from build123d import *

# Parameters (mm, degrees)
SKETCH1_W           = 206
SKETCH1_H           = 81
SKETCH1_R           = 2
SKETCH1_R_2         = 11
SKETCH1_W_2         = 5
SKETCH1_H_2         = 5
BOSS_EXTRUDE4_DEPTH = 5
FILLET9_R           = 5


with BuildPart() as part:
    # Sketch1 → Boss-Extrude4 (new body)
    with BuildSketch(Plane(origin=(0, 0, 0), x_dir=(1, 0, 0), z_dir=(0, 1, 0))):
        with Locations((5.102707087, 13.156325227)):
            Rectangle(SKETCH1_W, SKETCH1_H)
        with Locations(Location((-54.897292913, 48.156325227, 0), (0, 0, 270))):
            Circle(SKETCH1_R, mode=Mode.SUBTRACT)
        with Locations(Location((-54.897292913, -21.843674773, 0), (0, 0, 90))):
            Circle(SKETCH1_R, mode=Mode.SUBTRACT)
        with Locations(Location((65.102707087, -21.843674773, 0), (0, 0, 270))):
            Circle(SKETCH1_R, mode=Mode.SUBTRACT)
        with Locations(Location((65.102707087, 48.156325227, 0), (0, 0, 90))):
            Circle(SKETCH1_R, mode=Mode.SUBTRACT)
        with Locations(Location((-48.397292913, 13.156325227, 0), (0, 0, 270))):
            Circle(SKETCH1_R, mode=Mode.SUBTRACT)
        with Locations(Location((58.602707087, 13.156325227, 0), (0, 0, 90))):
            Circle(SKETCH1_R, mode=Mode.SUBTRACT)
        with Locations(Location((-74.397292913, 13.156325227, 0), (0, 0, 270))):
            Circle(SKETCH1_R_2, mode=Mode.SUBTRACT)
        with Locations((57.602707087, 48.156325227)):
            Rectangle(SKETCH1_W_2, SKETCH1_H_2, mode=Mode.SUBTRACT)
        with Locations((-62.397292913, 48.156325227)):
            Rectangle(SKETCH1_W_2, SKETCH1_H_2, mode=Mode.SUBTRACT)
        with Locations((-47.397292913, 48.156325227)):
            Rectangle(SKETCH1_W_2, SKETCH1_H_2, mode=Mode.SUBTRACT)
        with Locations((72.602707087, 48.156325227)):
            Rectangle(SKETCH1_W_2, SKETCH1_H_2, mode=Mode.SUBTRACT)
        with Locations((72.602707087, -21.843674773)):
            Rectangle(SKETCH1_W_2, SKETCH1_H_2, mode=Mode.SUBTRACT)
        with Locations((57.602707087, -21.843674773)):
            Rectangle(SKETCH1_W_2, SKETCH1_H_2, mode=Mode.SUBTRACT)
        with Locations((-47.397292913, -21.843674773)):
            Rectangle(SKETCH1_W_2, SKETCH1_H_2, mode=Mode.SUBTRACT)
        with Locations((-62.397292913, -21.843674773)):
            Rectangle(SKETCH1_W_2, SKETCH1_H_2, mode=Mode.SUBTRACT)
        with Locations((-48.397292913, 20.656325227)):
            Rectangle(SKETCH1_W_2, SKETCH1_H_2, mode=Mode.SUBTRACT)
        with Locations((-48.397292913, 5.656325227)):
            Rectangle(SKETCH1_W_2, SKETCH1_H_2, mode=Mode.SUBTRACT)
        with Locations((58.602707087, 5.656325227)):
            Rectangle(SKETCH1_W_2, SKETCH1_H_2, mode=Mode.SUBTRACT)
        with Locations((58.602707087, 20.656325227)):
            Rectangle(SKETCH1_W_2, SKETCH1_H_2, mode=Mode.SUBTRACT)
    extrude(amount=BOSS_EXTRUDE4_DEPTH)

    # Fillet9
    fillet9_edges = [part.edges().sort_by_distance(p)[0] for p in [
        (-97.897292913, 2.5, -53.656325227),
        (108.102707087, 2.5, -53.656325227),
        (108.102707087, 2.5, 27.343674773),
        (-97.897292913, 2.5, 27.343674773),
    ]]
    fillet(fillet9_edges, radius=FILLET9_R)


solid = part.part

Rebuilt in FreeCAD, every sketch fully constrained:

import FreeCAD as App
import Part
import Sketcher
from FreeCAD import Vector


def edges_at(feature, points):
    """Names of the edges that pass closest to the given points."""
    edges = feature.Shape.Edges
    near = lambda p: min(range(len(edges)), key=lambda i: edges[i].distToShape(Part.Vertex(*p))[0])
    return sorted({f"Edge{near(p) + 1}" for p in points})

doc = App.newDocument("Part")
params = doc.addObject("Spreadsheet::Sheet", "Params")
for row, (alias, value) in enumerate([
    ("sketch1_diameter", "4 mm"),
    ("sketch1_diameter2", "22 mm"),
    ("sketch1_width", "206 mm"),
    ("sketch1_width2", "5 mm"),
    ("sketch1_height", "81 mm"),
    ("pad1_length", "5 mm"),
    ("fillet_radius", "5 mm"),
], start=1):
    params.set(f"A{row}", alias)
    params.set(f"B{row}", "=" + value)
    params.setAlias(f"B{row}", alias)

body = doc.addObject("PartDesign::Body", "Body")

sketch1 = body.newObject("Sketcher::SketchObject", "Sketch")
sketch1.AttachmentSupport = (doc.getObject("XZ_Plane"), [""])
sketch1.MapMode = "FlatFace"
sketch1.addGeometry(Part.LineSegment(Vector(-97.9, -53.7, 0), Vector(-97.9, 27.3, 0)), False)
sketch1.addGeometry(Part.LineSegment(Vector(-97.9, 27.3, 0), Vector(108.1, 27.3, 0)), False)
sketch1.addGeometry(Part.LineSegment(Vector(108.1, 27.3, 0), Vector(108.1, -53.7, 0)), False)
sketch1.addGeometry(Part.LineSegment(Vector(108.1, -53.7, 0), Vector(-97.9, -53.7, 0)), False)
sketch1.addGeometry(Part.LineSegment(Vector(-59.9, 24.3, 0), Vector(-64.9, 24.3, 0)), False)
sketch1.addGeometry(Part.LineSegment(Vector(-64.9, 24.3, 0), Vector(-64.9, 19.3, 0)), False)
sketch1.addGeometry(Part.LineSegment(Vector(-64.9, 19.3, 0), Vector(-59.9, 19.3, 0)), False)
sketch1.addGeometry(Part.LineSegment(Vector(-59.9, 19.3, 0), Vector(-59.9, 24.3, 0)), False)
sketch1.addGeometry(Part.Circle(Vector(-54.9, 21.8, 0), Vector(0, 0, 1), 2), False)
sketch1.addGeometry(Part.LineSegment(Vector(-44.9, 24.3, 0), Vector(-49.9, 24.3, 0)), False)
sketch1.addGeometry(Part.LineSegment(Vector(-49.9, 24.3, 0), Vector(-49.9, 19.3, 0)), False)
sketch1.addGeometry(Part.LineSegment(Vector(-49.9, 19.3, 0), Vector(-44.9, 19.3, 0)), False)
sketch1.addGeometry(Part.LineSegment(Vector(-44.9, 19.3, 0), Vector(-44.9, 24.3, 0)), False)
sketch1.addGeometry(Part.LineSegment(Vector(-45.9, -3.2, 0), Vector(-50.9, -3.2, 0)), False)
sketch1.addGeometry(Part.LineSegment(Vector(-50.9, -3.2, 0), Vector(-50.9, -8.2, 0)), False)
sketch1.addGeometry(Part.LineSegment(Vector(-50.9, -8.2, 0), Vector(-45.9, -8.2, 0)), False)
sketch1.addGeometry(Part.LineSegment(Vector(-45.9, -8.2, 0), Vector(-45.9, -3.2, 0)), False)
sketch1.addGeometry(Part.LineSegment(Vector(60.1, 24.3, 0), Vector(55.1, 24.3, 0)), False)
sketch1.addGeometry(Part.LineSegment(Vector(55.1, 24.3, 0), Vector(55.1, 19.3, 0)), False)
sketch1.addGeometry(Part.LineSegment(Vector(55.1, 19.3, 0), Vector(60.1, 19.3, 0)), False)
sketch1.addGeometry(Part.LineSegment(Vector(60.1, 19.3, 0), Vector(60.1, 24.3, 0)), False)
sketch1.addGeometry(Part.Circle(Vector(65.1, 21.8, 0), Vector(0, 0, 1), 2), False)
sketch1.addGeometry(Part.LineSegment(Vector(75.1, 24.3, 0), Vector(70.1, 24.3, 0)), False)
sketch1.addGeometry(Part.LineSegment(Vector(70.1, 24.3, 0), Vector(70.1, 19.3, 0)), False)
sketch1.addGeometry(Part.LineSegment(Vector(70.1, 19.3, 0), Vector(75.1, 19.3, 0)), False)
sketch1.addGeometry(Part.LineSegment(Vector(75.1, 19.3, 0), Vector(75.1, 24.3, 0)), False)
sketch1.addGeometry(Part.LineSegment(Vector(61.1, -3.2, 0), Vector(56.1, -3.2, 0)), False)
sketch1.addGeometry(Part.LineSegment(Vector(56.1, -3.2, 0), Vector(56.1, -8.2, 0)), False)
sketch1.addGeometry(Part.LineSegment(Vector(56.1, -8.2, 0), Vector(61.1, -8.2, 0)), False)
sketch1.addGeometry(Part.LineSegment(Vector(61.1, -8.2, 0), Vector(61.1, -3.2, 0)), False)
sketch1.addGeometry(Part.Circle(Vector(-74.4, -13.2, 0), Vector(0, 0, 1), 11), False)
sketch1.addGeometry(Part.Circle(Vector(-48.4, -13.2, 0), Vector(0, 0, 1), 2), False)
sketch1.addGeometry(Part.LineSegment(Vector(-45.9, -18.2, 0), Vector(-50.9, -18.2, 0)), False)
sketch1.addGeometry(Part.LineSegment(Vector(-50.9, -18.2, 0), Vector(-50.9, -23.2, 0)), False)
sketch1.addGeometry(Part.LineSegment(Vector(-50.9, -23.2, 0), Vector(-45.9, -23.2, 0)), False)
sketch1.addGeometry(Part.LineSegment(Vector(-45.9, -23.2, 0), Vector(-45.9, -18.2, 0)), False)
sketch1.addGeometry(Part.LineSegment(Vector(-59.9, -45.7, 0), Vector(-64.9, -45.7, 0)), False)
sketch1.addGeometry(Part.LineSegment(Vector(-64.9, -45.7, 0), Vector(-64.9, -50.7, 0)), False)
sketch1.addGeometry(Part.LineSegment(Vector(-64.9, -50.7, 0), Vector(-59.9, -50.7, 0)), False)
sketch1.addGeometry(Part.LineSegment(Vector(-59.9, -50.7, 0), Vector(-59.9, -45.7, 0)), False)
sketch1.addGeometry(Part.Circle(Vector(-54.9, -48.2, 0), Vector(0, 0, 1), 2), False)
sketch1.addGeometry(Part.LineSegment(Vector(-44.9, -45.7, 0), Vector(-49.9, -45.7, 0)), False)
sketch1.addGeometry(Part.LineSegment(Vector(-49.9, -45.7, 0), Vector(-49.9, -50.7, 0)), False)
sketch1.addGeometry(Part.LineSegment(Vector(-49.9, -50.7, 0), Vector(-44.9, -50.7, 0)), False)
sketch1.addGeometry(Part.LineSegment(Vector(-44.9, -50.7, 0), Vector(-44.9, -45.7, 0)), False)
sketch1.addGeometry(Part.Circle(Vector(58.6, -13.2, 0), Vector(0, 0, 1), 2), False)
sketch1.addGeometry(Part.LineSegment(Vector(61.1, -18.2, 0), Vector(56.1, -18.2, 0)), False)
sketch1.addGeometry(Part.LineSegment(Vector(56.1, -18.2, 0), Vector(56.1, -23.2, 0)), False)
sketch1.addGeometry(Part.LineSegment(Vector(56.1, -23.2, 0), Vector(61.1, -23.2, 0)), False)
sketch1.addGeometry(Part.LineSegment(Vector(61.1, -23.2, 0), Vector(61.1, -18.2, 0)), False)
sketch1.addGeometry(Part.LineSegment(Vector(60.1, -45.7, 0), Vector(55.1, -45.7, 0)), False)
sketch1.addGeometry(Part.LineSegment(Vector(55.1, -45.7, 0), Vector(55.1, -50.7, 0)), False)
sketch1.addGeometry(Part.LineSegment(Vector(55.1, -50.7, 0), Vector(60.1, -50.7, 0)), False)
sketch1.addGeometry(Part.LineSegment(Vector(60.1, -50.7, 0), Vector(60.1, -45.7, 0)), False)
sketch1.addGeometry(Part.Circle(Vector(65.1, -48.2, 0), Vector(0, 0, 1), 2), False)
sketch1.addGeometry(Part.LineSegment(Vector(75.1, -45.7, 0), Vector(70.1, -45.7, 0)), False)
sketch1.addGeometry(Part.LineSegment(Vector(70.1, -45.7, 0), Vector(70.1, -50.7, 0)), False)
sketch1.addGeometry(Part.LineSegment(Vector(70.1, -50.7, 0), Vector(75.1, -50.7, 0)), False)
sketch1.addGeometry(Part.LineSegment(Vector(75.1, -50.7, 0), Vector(75.1, -45.7, 0)), False)
sketch1.addConstraint(Sketcher.Constraint("Coincident", 0, 2, 1, 1))
sketch1.addConstraint(Sketcher.Constraint("Coincident", 1, 2, 2, 1))
sketch1.addConstraint(Sketcher.Constraint("Coincident", 2, 2, 3, 1))
sketch1.addConstraint(Sketcher.Constraint("Coincident", 3, 2, 0, 1))
sketch1.addConstraint(Sketcher.Constraint("Coincident", 4, 2, 5, 1))
sketch1.addConstraint(Sketcher.Constraint("Coincident", 5, 2, 6, 1))
sketch1.addConstraint(Sketcher.Constraint("Coincident", 6, 2, 7, 1))
sketch1.addConstraint(Sketcher.Constraint("Coincident", 7, 2, 4, 1))
sketch1.addConstraint(Sketcher.Constraint("Coincident", 9, 2, 10, 1))
sketch1.addConstraint(Sketcher.Constraint("Coincident", 10, 2, 11, 1))
sketch1.addConstraint(Sketcher.Constraint("Coincident", 11, 2, 12, 1))
sketch1.addConstraint(Sketcher.Constraint("Coincident", 12, 2, 9, 1))
sketch1.addConstraint(Sketcher.Constraint("Coincident", 13, 2, 14, 1))
sketch1.addConstraint(Sketcher.Constraint("Coincident", 14, 2, 15, 1))
sketch1.addConstraint(Sketcher.Constraint("Coincident", 15, 2, 16, 1))
sketch1.addConstraint(Sketcher.Constraint("Coincident", 16, 2, 13, 1))
sketch1.addConstraint(Sketcher.Constraint("Coincident", 17, 2, 18, 1))
sketch1.addConstraint(Sketcher.Constraint("Coincident", 18, 2, 19, 1))
sketch1.addConstraint(Sketcher.Constraint("Coincident", 19, 2, 20, 1))
sketch1.addConstraint(Sketcher.Constraint("Coincident", 20, 2, 17, 1))
sketch1.addConstraint(Sketcher.Constraint("Coincident", 22, 2, 23, 1))
sketch1.addConstraint(Sketcher.Constraint("Coincident", 23, 2, 24, 1))
sketch1.addConstraint(Sketcher.Constraint("Coincident", 24, 2, 25, 1))
sketch1.addConstraint(Sketcher.Constraint("Coincident", 25, 2, 22, 1))
sketch1.addConstraint(Sketcher.Constraint("Coincident", 26, 2, 27, 1))
sketch1.addConstraint(Sketcher.Constraint("Coincident", 27, 2, 28, 1))
sketch1.addConstraint(Sketcher.Constraint("Coincident", 28, 2, 29, 1))
sketch1.addConstraint(Sketcher.Constraint("Coincident", 29, 2, 26, 1))
sketch1.addConstraint(Sketcher.Constraint("Coincident", 32, 2, 33, 1))
sketch1.addConstraint(Sketcher.Constraint("Coincident", 33, 2, 34, 1))
sketch1.addConstraint(Sketcher.Constraint("Coincident", 34, 2, 35, 1))
sketch1.addConstraint(Sketcher.Constraint("Coincident", 35, 2, 32, 1))
sketch1.addConstraint(Sketcher.Constraint("Coincident", 36, 2, 37, 1))
sketch1.addConstraint(Sketcher.Constraint("Coincident", 37, 2, 38, 1))
sketch1.addConstraint(Sketcher.Constraint("Coincident", 38, 2, 39, 1))
sketch1.addConstraint(Sketcher.Constraint("Coincident", 39, 2, 36, 1))
sketch1.addConstraint(Sketcher.Constraint("Coincident", 41, 2, 42, 1))
sketch1.addConstraint(Sketcher.Constraint("Coincident", 42, 2, 43, 1))
sketch1.addConstraint(Sketcher.Constraint("Coincident", 43, 2, 44, 1))
sketch1.addConstraint(Sketcher.Constraint("Coincident", 44, 2, 41, 1))
sketch1.addConstraint(Sketcher.Constraint("Coincident", 46, 2, 47, 1))
sketch1.addConstraint(Sketcher.Constraint("Coincident", 47, 2, 48, 1))
sketch1.addConstraint(Sketcher.Constraint("Coincident", 48, 2, 49, 1))
sketch1.addConstraint(Sketcher.Constraint("Coincident", 49, 2, 46, 1))
sketch1.addConstraint(Sketcher.Constraint("Coincident", 50, 2, 51, 1))
sketch1.addConstraint(Sketcher.Constraint("Coincident", 51, 2, 52, 1))
sketch1.addConstraint(Sketcher.Constraint("Coincident", 52, 2, 53, 1))
sketch1.addConstraint(Sketcher.Constraint("Coincident", 53, 2, 50, 1))
sketch1.addConstraint(Sketcher.Constraint("Coincident", 55, 2, 56, 1))
sketch1.addConstraint(Sketcher.Constraint("Coincident", 56, 2, 57, 1))
sketch1.addConstraint(Sketcher.Constraint("Coincident", 57, 2, 58, 1))
sketch1.addConstraint(Sketcher.Constraint("Coincident", 58, 2, 55, 1))
sketch1.addConstraint(Sketcher.Constraint("Vertical", 0))
sketch1.addConstraint(Sketcher.Constraint("Horizontal", 1))
sketch1.addConstraint(Sketcher.Constraint("Vertical", 2))
sketch1.addConstraint(Sketcher.Constraint("Horizontal", 3))
sketch1.addConstraint(Sketcher.Constraint("Horizontal", 4))
sketch1.addConstraint(Sketcher.Constraint("Vertical", 5))
sketch1.addConstraint(Sketcher.Constraint("Horizontal", 6))
sketch1.addConstraint(Sketcher.Constraint("Vertical", 7))
sketch1.addConstraint(Sketcher.Constraint("Horizontal", 9))
sketch1.addConstraint(Sketcher.Constraint("Vertical", 10))
sketch1.addConstraint(Sketcher.Constraint("Horizontal", 11))
sketch1.addConstraint(Sketcher.Constraint("Vertical", 12))
sketch1.addConstraint(Sketcher.Constraint("Horizontal", 13))
sketch1.addConstraint(Sketcher.Constraint("Vertical", 14))
sketch1.addConstraint(Sketcher.Constraint("Horizontal", 15))
sketch1.addConstraint(Sketcher.Constraint("Vertical", 16))
sketch1.addConstraint(Sketcher.Constraint("Horizontal", 17))
sketch1.addConstraint(Sketcher.Constraint("Vertical", 18))
sketch1.addConstraint(Sketcher.Constraint("Horizontal", 19))
sketch1.addConstraint(Sketcher.Constraint("Vertical", 20))
sketch1.addConstraint(Sketcher.Constraint("Horizontal", 22))
sketch1.addConstraint(Sketcher.Constraint("Vertical", 23))
sketch1.addConstraint(Sketcher.Constraint("Horizontal", 24))
sketch1.addConstraint(Sketcher.Constraint("Vertical", 25))
sketch1.addConstraint(Sketcher.Constraint("Horizontal", 26))
sketch1.addConstraint(Sketcher.Constraint("Vertical", 27))
sketch1.addConstraint(Sketcher.Constraint("Horizontal", 28))
sketch1.addConstraint(Sketcher.Constraint("Vertical", 29))
sketch1.addConstraint(Sketcher.Constraint("Horizontal", 32))
sketch1.addConstraint(Sketcher.Constraint("Vertical", 33))
sketch1.addConstraint(Sketcher.Constraint("Horizontal", 34))
sketch1.addConstraint(Sketcher.Constraint("Vertical", 35))
sketch1.addConstraint(Sketcher.Constraint("Horizontal", 36))
sketch1.addConstraint(Sketcher.Constraint("Vertical", 37))
sketch1.addConstraint(Sketcher.Constraint("Horizontal", 38))
sketch1.addConstraint(Sketcher.Constraint("Vertical", 39))
sketch1.addConstraint(Sketcher.Constraint("Horizontal", 41))
sketch1.addConstraint(Sketcher.Constraint("Vertical", 42))
sketch1.addConstraint(Sketcher.Constraint("Horizontal", 43))
sketch1.addConstraint(Sketcher.Constraint("Vertical", 44))
sketch1.addConstraint(Sketcher.Constraint("Horizontal", 46))
sketch1.addConstraint(Sketcher.Constraint("Vertical", 47))
sketch1.addConstraint(Sketcher.Constraint("Horizontal", 48))
sketch1.addConstraint(Sketcher.Constraint("Vertical", 49))
sketch1.addConstraint(Sketcher.Constraint("Horizontal", 50))
sketch1.addConstraint(Sketcher.Constraint("Vertical", 51))
sketch1.addConstraint(Sketcher.Constraint("Horizontal", 52))
sketch1.addConstraint(Sketcher.Constraint("Vertical", 53))
sketch1.addConstraint(Sketcher.Constraint("Horizontal", 55))
sketch1.addConstraint(Sketcher.Constraint("Vertical", 56))
sketch1.addConstraint(Sketcher.Constraint("Horizontal", 57))
sketch1.addConstraint(Sketcher.Constraint("Vertical", 58))
sketch1.addConstraint(Sketcher.Constraint("Equal", 8, 21))
sketch1.addConstraint(Sketcher.Constraint("Equal", 21, 31))
sketch1.addConstraint(Sketcher.Constraint("Equal", 31, 40))
sketch1.addConstraint(Sketcher.Constraint("Equal", 40, 45))
sketch1.addConstraint(Sketcher.Constraint("Equal", 45, 54))
sketch1.addConstraint(Sketcher.Constraint("Horizontal", 8, 3, 21, 3))
sketch1.addConstraint(Sketcher.Constraint("Horizontal", 30, 3, 31, 3))
sketch1.addConstraint(Sketcher.Constraint("Horizontal", 31, 3, 45, 3))
sketch1.addConstraint(Sketcher.Constraint("Horizontal", 40, 3, 54, 3))
sketch1.addConstraint(Sketcher.Constraint("Horizontal", 7, 2, 9, 2))
sketch1.addConstraint(Sketcher.Constraint("Horizontal", 6, 2, 10, 2))
sketch1.addConstraint(Sketcher.Constraint("Horizontal", 12, 2, 17, 2))
sketch1.addConstraint(Sketcher.Constraint("Horizontal", 11, 2, 18, 2))
sketch1.addConstraint(Sketcher.Constraint("Horizontal", 20, 2, 22, 2))
sketch1.addConstraint(Sketcher.Constraint("Horizontal", 19, 2, 23, 2))
sketch1.addConstraint(Sketcher.Constraint("Horizontal", 16, 2, 26, 2))
sketch1.addConstraint(Sketcher.Constraint("Horizontal", 15, 2, 27, 2))
sketch1.addConstraint(Sketcher.Constraint("Horizontal", 39, 2, 41, 2))
sketch1.addConstraint(Sketcher.Constraint("Horizontal", 38, 2, 42, 2))
sketch1.addConstraint(Sketcher.Constraint("Horizontal", 35, 2, 46, 2))
sketch1.addConstraint(Sketcher.Constraint("Horizontal", 34, 2, 47, 2))
sketch1.addConstraint(Sketcher.Constraint("Horizontal", 44, 2, 50, 2))
sketch1.addConstraint(Sketcher.Constraint("Horizontal", 43, 2, 51, 2))
sketch1.addConstraint(Sketcher.Constraint("Horizontal", 53, 2, 55, 2))
sketch1.addConstraint(Sketcher.Constraint("Horizontal", 52, 2, 56, 2))
sketch1.addConstraint(Sketcher.Constraint("Vertical", 8, 3, 40, 3))
sketch1.addConstraint(Sketcher.Constraint("Vertical", 21, 3, 54, 3))
sketch1.addConstraint(Sketcher.Constraint("Vertical", 14, 2, 32, 2))
sketch1.addConstraint(Sketcher.Constraint("Vertical", 16, 2, 34, 2))
sketch1.addConstraint(Sketcher.Constraint("Vertical", 5, 2, 36, 2))
sketch1.addConstraint(Sketcher.Constraint("Vertical", 7, 2, 38, 2))
sketch1.addConstraint(Sketcher.Constraint("Vertical", 10, 2, 41, 2))
sketch1.addConstraint(Sketcher.Constraint("Vertical", 12, 2, 43, 2))
sketch1.addConstraint(Sketcher.Constraint("Vertical", 27, 2, 46, 2))
sketch1.addConstraint(Sketcher.Constraint("Vertical", 29, 2, 48, 2))
sketch1.addConstraint(Sketcher.Constraint("Vertical", 18, 2, 50, 2))
sketch1.addConstraint(Sketcher.Constraint("Vertical", 20, 2, 52, 2))
sketch1.addConstraint(Sketcher.Constraint("Vertical", 23, 2, 55, 2))
sketch1.addConstraint(Sketcher.Constraint("Vertical", 25, 2, 57, 2))
sketch1.addConstraint(Sketcher.Constraint("Equal", 6, 9))
sketch1.addConstraint(Sketcher.Constraint("Equal", 11, 13))
sketch1.addConstraint(Sketcher.Constraint("Equal", 15, 17))
sketch1.addConstraint(Sketcher.Constraint("Equal", 19, 22))
sketch1.addConstraint(Sketcher.Constraint("Equal", 24, 26))
sketch1.addConstraint(Sketcher.Constraint("Equal", 57, 5))
sketch1.addConstraint(Sketcher.Constraint("Equal", 12, 14))
sketch1.addConstraint(Sketcher.Constraint("Equal", 29, 33))
sketch1.addConstraint(Sketcher.Constraint("Equal", 35, 37))
sketch1.addConstraint(Sketcher.Constraint("Diameter", 8, 4.0))
sketch1.addConstraint(Sketcher.Constraint("Diameter", 30, 22.0))
sketch1.addConstraint(Sketcher.Constraint("DistanceX", 1, 1, 1, 2, 206.0))
sketch1.addConstraint(Sketcher.Constraint("DistanceX", 4, 2, 4, 1, 5.0))
sketch1.addConstraint(Sketcher.Constraint("DistanceY", 0, 1, 0, 2, 81.0))
sketch1.addConstraint(Sketcher.Constraint("DistanceX", 8, 3, 21, 3, 120.0))
sketch1.addConstraint(Sketcher.Constraint("DistanceY", 30, 3, 8, 3, 35.0))
sketch1.addConstraint(Sketcher.Constraint("DistanceX", 30, 3, 31, 3, 26.0))
sketch1.addConstraint(Sketcher.Constraint("DistanceY", 40, 3, 31, 3, 35.0))
sketch1.addConstraint(Sketcher.Constraint("DistanceX", 31, 3, 45, 3, 107.0))
sketch1.addConstraint(Sketcher.Constraint("DistanceX", 0, 2, 8, 3, 43.0))
sketch1.addConstraint(Sketcher.Constraint("DistanceX", 4, 2, 8, 3, 10.0))
sketch1.addConstraint(Sketcher.Constraint("DistanceY", 4, 2, 0, 2, 3.0))
sketch1.addConstraint(Sketcher.Constraint("DistanceX", 8, 3, 9, 2, 5.0))
sketch1.addConstraint(Sketcher.Constraint("DistanceY", 31, 3, 13, 2, 10.0))
sketch1.addConstraint(Sketcher.Constraint("DistanceX", 13, 2, 10, 2, 1.0))
sketch1.addConstraint(Sketcher.Constraint("DistanceX", 17, 2, 21, 3, 10.0))
sketch1.addConstraint(Sketcher.Constraint("DistanceX", 21, 3, 22, 2, 5.0))
sketch1.addConstraint(Sketcher.Constraint("DistanceX", 18, 2, 26, 2, 1.0))
sketch1.addConstraint(Sketcher.Constraint("DistanceY", 32, 2, 31, 3, 5.0))
sketch1.addConstraint(Sketcher.Constraint("DistanceY", 3, 2, 37, 2, 3.0))
sketch1.addConstraint(Sketcher.Constraint("DistanceX", 30, 3, 8, 3, 19.5))
sketch1.addConstraint(Sketcher.Constraint("DistanceY", 8, 3, 0, 2, 5.5))
sketch1.addConstraint(Sketcher.Constraint("DistanceX", 8, 3, -1, 1, 54.897293))
sketch1.addConstraint(Sketcher.Constraint("DistanceY", -1, 1, 8, 3, 21.843675))
sketch1.setExpression("Constraints[152]", "Params.sketch1_diameter")
sketch1.setExpression("Constraints[153]", "Params.sketch1_diameter2")
sketch1.setExpression("Constraints[154]", "Params.sketch1_width")
sketch1.setExpression("Constraints[155]", "Params.sketch1_width2")
sketch1.setExpression("Constraints[156]", "Params.sketch1_height")
pad1 = body.newObject("PartDesign::Pad", "Pad")
pad1.Profile = sketch1
pad1.setExpression("Length", "Params.pad1_length")
pad1.Reversed = True
doc.recompute()

fillet = body.newObject("PartDesign::Fillet", "Fillet")
fillet.Base = (pad1, edges_at(pad1, [
    (-97.897, 2.5, -53.656),
    (108.103, 2.5, -53.656),
    (108.103, 2.5, 27.344),
    (-97.897, 2.5, 27.344),
]))
fillet.setExpression("Radius", "Params.fillet_radius")

doc.recompute()
